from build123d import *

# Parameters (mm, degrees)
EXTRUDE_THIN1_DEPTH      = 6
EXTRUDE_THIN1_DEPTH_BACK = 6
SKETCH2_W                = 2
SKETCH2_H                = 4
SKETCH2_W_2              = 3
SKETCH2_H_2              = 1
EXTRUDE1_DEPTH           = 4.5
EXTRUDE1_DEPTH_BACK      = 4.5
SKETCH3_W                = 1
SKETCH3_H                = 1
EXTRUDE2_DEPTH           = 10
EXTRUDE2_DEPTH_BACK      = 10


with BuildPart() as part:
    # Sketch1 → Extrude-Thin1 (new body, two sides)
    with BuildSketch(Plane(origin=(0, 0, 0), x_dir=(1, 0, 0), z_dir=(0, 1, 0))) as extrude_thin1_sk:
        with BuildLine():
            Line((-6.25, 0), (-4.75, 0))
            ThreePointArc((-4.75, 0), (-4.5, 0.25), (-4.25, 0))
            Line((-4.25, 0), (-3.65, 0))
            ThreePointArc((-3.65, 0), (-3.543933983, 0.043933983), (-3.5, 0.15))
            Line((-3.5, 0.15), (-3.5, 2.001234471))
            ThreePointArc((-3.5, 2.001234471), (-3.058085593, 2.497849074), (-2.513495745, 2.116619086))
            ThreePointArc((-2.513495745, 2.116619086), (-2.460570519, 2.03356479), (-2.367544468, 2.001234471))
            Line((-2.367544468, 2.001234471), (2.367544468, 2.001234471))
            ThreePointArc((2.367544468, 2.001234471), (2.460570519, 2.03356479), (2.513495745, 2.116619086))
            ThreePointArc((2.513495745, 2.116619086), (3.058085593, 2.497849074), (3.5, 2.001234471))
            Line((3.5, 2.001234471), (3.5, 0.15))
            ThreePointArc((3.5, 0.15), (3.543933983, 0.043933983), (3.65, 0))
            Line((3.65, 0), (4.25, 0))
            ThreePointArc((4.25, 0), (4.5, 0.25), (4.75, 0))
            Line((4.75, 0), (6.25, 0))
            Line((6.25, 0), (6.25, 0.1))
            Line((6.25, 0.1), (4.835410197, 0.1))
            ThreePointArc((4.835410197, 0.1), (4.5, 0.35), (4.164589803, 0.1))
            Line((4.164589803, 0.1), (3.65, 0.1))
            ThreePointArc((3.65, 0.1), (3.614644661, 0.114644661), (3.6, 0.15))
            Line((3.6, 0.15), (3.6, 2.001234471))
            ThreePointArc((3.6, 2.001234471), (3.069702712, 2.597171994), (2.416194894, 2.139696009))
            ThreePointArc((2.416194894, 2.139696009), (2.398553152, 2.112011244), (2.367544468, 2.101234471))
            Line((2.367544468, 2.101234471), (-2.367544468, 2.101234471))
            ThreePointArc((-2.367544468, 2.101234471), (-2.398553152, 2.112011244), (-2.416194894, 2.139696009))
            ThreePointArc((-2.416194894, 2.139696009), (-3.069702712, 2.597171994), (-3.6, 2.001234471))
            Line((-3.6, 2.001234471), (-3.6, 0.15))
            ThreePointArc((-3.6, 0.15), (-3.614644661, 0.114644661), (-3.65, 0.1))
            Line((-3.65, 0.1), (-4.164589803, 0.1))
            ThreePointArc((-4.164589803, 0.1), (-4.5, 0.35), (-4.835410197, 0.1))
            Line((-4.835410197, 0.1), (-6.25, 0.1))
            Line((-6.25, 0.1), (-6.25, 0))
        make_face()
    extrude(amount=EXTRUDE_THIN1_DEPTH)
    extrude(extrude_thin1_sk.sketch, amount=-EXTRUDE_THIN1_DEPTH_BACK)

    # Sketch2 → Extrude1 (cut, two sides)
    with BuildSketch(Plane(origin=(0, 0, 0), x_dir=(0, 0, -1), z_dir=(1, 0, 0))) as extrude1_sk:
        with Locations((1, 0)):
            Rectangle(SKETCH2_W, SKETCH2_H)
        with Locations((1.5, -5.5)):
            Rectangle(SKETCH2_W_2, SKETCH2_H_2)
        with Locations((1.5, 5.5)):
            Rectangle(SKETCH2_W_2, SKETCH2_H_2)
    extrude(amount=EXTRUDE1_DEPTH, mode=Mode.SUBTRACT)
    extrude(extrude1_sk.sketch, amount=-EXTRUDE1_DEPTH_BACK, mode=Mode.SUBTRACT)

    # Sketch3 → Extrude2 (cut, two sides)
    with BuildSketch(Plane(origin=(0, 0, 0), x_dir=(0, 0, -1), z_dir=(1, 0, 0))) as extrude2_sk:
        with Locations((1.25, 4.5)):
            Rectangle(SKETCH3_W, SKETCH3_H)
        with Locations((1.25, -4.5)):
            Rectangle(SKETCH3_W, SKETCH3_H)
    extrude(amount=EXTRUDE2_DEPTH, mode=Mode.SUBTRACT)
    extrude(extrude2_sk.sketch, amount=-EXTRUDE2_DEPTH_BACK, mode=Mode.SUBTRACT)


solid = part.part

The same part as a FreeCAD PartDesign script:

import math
import FreeCAD as App
import Part
import Sketcher

V = App.Vector
Q = App.Units.Quantity


def add_polygon(sketch, points):
    """Adds a closed chain of lines whose ends are joined by coincident constraints."""
    first, n = sketch.GeometryCount, len(points)
    for a, b in zip(points, points[1:] + points[:1]):
        sketch.addGeometry(Part.LineSegment(App.Vector(*a, 0), App.Vector(*b, 0)), False)
    for i in range(n):
        sketch.addConstraint(Sketcher.Constraint("Coincident", first + i, 2, first + (i + 1) % n, 1))

doc = App.newDocument("Part")
body = doc.addObject("PartDesign::Body", "Body")

sketch1 = doc.addObject("Sketcher::SketchObject", "Sketch")
body.addObject(sketch1)
sketch1.AttachmentSupport = (doc.XZ_Plane, [""])
sketch1.MapMode = "FlatFace"
sketch1.addGeometry(Part.LineSegment(V(-6.25, 0, 0), V(-4.75, 0, 0)), False)
sketch1.addGeometry(Part.ArcOfCircle(Part.Circle(V(-4.5, 0, 0), V(0, 0, 1), 0.25), math.radians(180), math.radians(360)), False)
sketch1.addGeometry(Part.LineSegment(V(-4.25, 0, 0), V(-3.65, 0, 0)), False)
sketch1.addGeometry(Part.ArcOfCircle(Part.Circle(V(-3.65, -0.15, 0), V(0, 0, 1), 0.15), math.radians(0), math.radians(90)), False)
sketch1.addGeometry(Part.LineSegment(V(-3.5, -0.15, 0), V(-3.5, -2.001234, 0)), False)
sketch1.addGeometry(Part.ArcOfCircle(Part.Circle(V(-3, -2.001234, 0), V(0, 0, 1), 0.5), math.radians(180), math.radians(346.657636)), False)
sketch1.addGeometry(Part.ArcOfCircle(Part.Circle(V(-2.367544, -2.151234, 0), V(0, 0, 1), 0.15), math.radians(90), math.radians(166.657636)), False)
sketch1.addGeometry(Part.LineSegment(V(-2.367544, -2.001234, 0), V(2.367544, -2.001234, 0)), False)
sketch1.addGeometry(Part.ArcOfCircle(Part.Circle(V(2.367544, -2.151234, 0), V(0, 0, 1), 0.15), math.radians(13.342364), math.radians(90)), False)
sketch1.addGeometry(Part.ArcOfCircle(Part.Circle(V(3, -2.001234, 0), V(0, 0, 1), 0.5), math.radians(-166.657636), math.radians(0)), False)
sketch1.addGeometry(Part.LineSegment(V(3.5, -2.001234, 0), V(3.5, -0.15, 0)), False)
sketch1.addGeometry(Part.ArcOfCircle(Part.Circle(V(3.65, -0.15, 0), V(0, 0, 1), 0.15), math.radians(90), math.radians(180)), False)
sketch1.addGeometry(Part.LineSegment(V(3.65, 0, 0), V(4.25, 0, 0)), False)
sketch1.addGeometry(Part.ArcOfCircle(Part.Circle(V(4.5, 0, 0), V(0, 0, 1), 0.25), math.radians(180), math.radians(360)), False)
sketch1.addGeometry(Part.LineSegment(V(4.75, 0, 0), V(6.25, 0, 0)), False)
sketch1.addGeometry(Part.LineSegment(V(6.25, 0, 0), V(6.25, -0.1, 0)), False)
sketch1.addGeometry(Part.LineSegment(V(6.25, -0.1, 0), V(4.83541, -0.1, 0)), False)
sketch1.addGeometry(Part.ArcOfCircle(Part.Circle(V(4.5, 0, 0), V(0, 0, 1), 0.35), math.radians(-163.39845), math.radians(-16.60155)), False)
sketch1.addGeometry(Part.LineSegment(V(4.16459, -0.1, 0), V(3.65, -0.1, 0)), False)
sketch1.addGeometry(Part.ArcOfCircle(Part.Circle(V(3.65, -0.15, 0), V(0, 0, 1), 0.05), math.radians(90), math.radians(180)), False)
sketch1.addGeometry(Part.LineSegment(V(3.6, -0.15, 0), V(3.6, -2.001234, 0)), False)
sketch1.addGeometry(Part.ArcOfCircle(Part.Circle(V(3, -2.001234, 0), V(0, 0, 1), 0.6), math.radians(-166.657636), math.radians(0)), False)
sketch1.addGeometry(Part.ArcOfCircle(Part.Circle(V(2.367544, -2.151234, 0), V(0, 0, 1), 0.05), math.radians(13.342365), math.radians(90)), False)
sketch1.addGeometry(Part.LineSegment(V(2.367544, -2.101234, 0), V(-2.367544, -2.101234, 0)), False)
sketch1.addGeometry(Part.ArcOfCircle(Part.Circle(V(-2.367544, -2.151234, 0), V(0, 0, 1), 0.05), math.radians(90), math.radians(166.657635)), False)
sketch1.addGeometry(Part.ArcOfCircle(Part.Circle(V(-3, -2.001234, 0), V(0, 0, 1), 0.6), math.radians(180), math.radians(346.657636)), False)
sketch1.addGeometry(Part.LineSegment(V(-3.6, -2.001234, 0), V(-3.6, -0.15, 0)), False)
sketch1.addGeometry(Part.ArcOfCircle(Part.Circle(V(-3.65, -0.15, 0), V(0, 0, 1), 0.05), math.radians(0), math.radians(90)), False)
sketch1.addGeometry(Part.LineSegment(V(-3.65, -0.1, 0), V(-4.16459, -0.1, 0)), False)
sketch1.addGeometry(Part.ArcOfCircle(Part.Circle(V(-4.5, 0, 0), V(0, 0, 1), 0.35), math.radians(-163.39845), math.radians(-16.60155)), False)
sketch1.addGeometry(Part.LineSegment(V(-4.83541, -0.1, 0), V(-6.25, -0.1, 0)), False)
sketch1.addGeometry(Part.LineSegment(V(-6.25, -0.1, 0), V(-6.25, 0, 0)), False)
sketch1.addConstraint(Sketcher.Constraint("Coincident", 0, 2, 1, 1))
sketch1.addConstraint(Sketcher.Constraint("Coincident", 1, 2, 2, 1))
sketch1.addConstraint(Sketcher.Constraint("Tangent", 2, 2, 3, 2))
sketch1.addConstraint(Sketcher.Constraint("Tangent", 3, 1, 4, 1))
sketch1.addConstraint(Sketcher.Constraint("Tangent", 4, 2, 5, 1))
sketch1.addConstraint(Sketcher.Constraint("Tangent", 5, 2, 6, 2))
sketch1.addConstraint(Sketcher.Constraint("Tangent", 6, 1, 7, 1))
sketch1.addConstraint(Sketcher.Constraint("Tangent", 7, 2, 8, 2))
sketch1.addConstraint(Sketcher.Constraint("Tangent", 8, 1, 9, 1))
sketch1.addConstraint(Sketcher.Constraint("Tangent", 9, 2, 10, 1))
sketch1.addConstraint(Sketcher.Constraint("Tangent", 10, 2, 11, 2))
sketch1.addConstraint(Sketcher.Constraint("Tangent", 11, 1, 12, 1))
sketch1.addConstraint(Sketcher.Constraint("Coincident", 12, 2, 13, 1))
sketch1.addConstraint(Sketcher.Constraint("Coincident", 13, 2, 14, 1))
sketch1.addConstraint(Sketcher.Constraint("Coincident", 14, 2, 15, 1))
sketch1.addConstraint(Sketcher.Constraint("Coincident", 15, 2, 16, 1))
sketch1.addConstraint(Sketcher.Constraint("Coincident", 16, 2, 17, 2))
sketch1.addConstraint(Sketcher.Constraint("Coincident", 17, 1, 18, 1))
sketch1.addConstraint(Sketcher.Constraint("Tangent", 18, 2, 19, 1))
sketch1.addConstraint(Sketcher.Constraint("Tangent", 19, 2, 20, 1))
sketch1.addConstraint(Sketcher.Constraint("Tangent", 20, 2, 21, 2))
sketch1.addConstraint(Sketcher.Constraint("Tangent", 21, 1, 22, 1))
sketch1.addConstraint(Sketcher.Constraint("Tangent", 22, 2, 23, 1))
sketch1.addConstraint(Sketcher.Constraint("Tangent", 23, 2, 24, 1))
sketch1.addConstraint(Sketcher.Constraint("Tangent", 24, 2, 25, 2))
sketch1.addConstraint(Sketcher.Constraint("Tangent", 25, 1, 26, 1))
sketch1.addConstraint(Sketcher.Constraint("Tangent", 26, 2, 27, 1))
sketch1.addConstraint(Sketcher.Constraint("Tangent", 27, 2, 28, 1))
sketch1.addConstraint(Sketcher.Constraint("Coincident", 28, 2, 29, 2))
sketch1.addConstraint(Sketcher.Constraint("Coincident", 29, 1, 30, 1))
sketch1.addConstraint(Sketcher.Constraint("Coincident", 30, 2, 31, 1))
sketch1.addConstraint(Sketcher.Constraint("Coincident", 31, 2, 0, 1))
sketch1.addConstraint(Sketcher.Constraint("Horizontal", 0))
sketch1.addConstraint(Sketcher.Constraint("Horizontal", 2))
sketch1.addConstraint(Sketcher.Constraint("Vertical", 4))
sketch1.addConstraint(Sketcher.Constraint("Horizontal", 7))
sketch1.addConstraint(Sketcher.Constraint("Vertical", 10))
sketch1.addConstraint(Sketcher.Constraint("Horizontal", 12))
sketch1.addConstraint(Sketcher.Constraint("Horizontal", 14))
sketch1.addConstraint(Sketcher.Constraint("Vertical", 15))
sketch1.addConstraint(Sketcher.Constraint("Horizontal", 16))
sketch1.addConstraint(Sketcher.Constraint("Horizontal", 18))
sketch1.addConstraint(Sketcher.Constraint("Vertical", 20))
sketch1.addConstraint(Sketcher.Constraint("Horizontal", 23))
sketch1.addConstraint(Sketcher.Constraint("Vertical", 26))
sketch1.addConstraint(Sketcher.Constraint("Horizontal", 28))
sketch1.addConstraint(Sketcher.Constraint("Horizontal", 30))
sketch1.addConstraint(Sketcher.Constraint("Vertical", 31))
sketch1.addConstraint(Sketcher.Constraint("Coincident", 17, 3, 13, 3))
sketch1.addConstraint(Sketcher.Constraint("Coincident", 19, 3, 11, 3))
sketch1.addConstraint(Sketcher.Constraint("Coincident", 21, 3, 9, 3))
sketch1.addConstraint(Sketcher.Constraint("Coincident", 22, 3, 8, 3))
sketch1.addConstraint(Sketcher.Constraint("Coincident", 24, 3, 6, 3))
sketch1.addConstraint(Sketcher.Constraint("Coincident", 25, 3, 5, 3))
sketch1.addConstraint(Sketcher.Constraint("Coincident", 27, 3, 3, 3))
sketch1.addConstraint(Sketcher.Constraint("Coincident", 29, 3, 1, 3))
sketch1.addConstraint(Sketcher.Constraint("Equal", 3, 6))
sketch1.addConstraint(Sketcher.Constraint("Equal", 6, 8))
sketch1.addConstraint(Sketcher.Constraint("Equal", 5, 9))
sketch1.addConstraint(Sketcher.Constraint("Equal", 8, 11))
sketch1.addConstraint(Sketcher.Constraint("Equal", 1, 13))
sketch1.addConstraint(Sketcher.Constraint("Equal", 17, 29))
sketch1.addConstraint(Sketcher.Constraint("Symmetric", 1, 3, 13, 3, -1, 1))
sketch1.addConstraint(Sketcher.Constraint("Symmetric", 2, 2, 11, 1, -1, 1))
sketch1.addConstraint(Sketcher.Constraint("Symmetric", 14, 2, 31, 2, -1, 1))
sketch1.addConstraint(Sketcher.Constraint("Symmetric", 17, 1, 28, 2, -2))
sketch1.addConstraint(Sketcher.Constraint("PointOnObject", 0, 2, -1))
sketch1.addConstraint(Sketcher.Constraint("Horizontal", 5, 3, 9, 3))
sketch1.addConstraint(Sketcher.Constraint("Horizontal", 4, 2, 6, 1))
sketch1.addConstraint(Sketcher.Constraint("Horizontal", 16, 2, 17, 1))
sketch1.addConstraint(Sketcher.Constraint("Horizontal", 28, 2, 29, 1))
sketch1.addConstraint(Sketcher.Constraint("Radius", 5, Q("0.5 mm")))
sketch1.addConstraint(Sketcher.Constraint("Radius", 21, Q("0.6 mm")))
sketch1.addConstraint(Sketcher.Constraint("Radius", 1, Q("0.25 mm")))
sketch1.addConstraint(Sketcher.Constraint("Radius", 3, Q("0.15 mm")))
sketch1.addConstraint(Sketcher.Constraint("Radius", 17, Q("0.35 mm")))
sketch1.addConstraint(Sketcher.Constraint("DistanceX", 0, 1, 0, 2, Q("1.5 mm")))
sketch1.addConstraint(Sketcher.Constraint("DistanceX", 2, 1, 2, 2, Q("0.6 mm")))
sketch1.addConstraint(Sketcher.Constraint("DistanceX", 5, 3, -1, 1, Q("3 mm")))
sketch1.addConstraint(Sketcher.Constraint("DistanceY", 4, 2, 4, 1, Q("1.851234 mm")))
pad1 = doc.addObject("PartDesign::Pad", "Pad")
body.addObject(pad1)
pad1.Profile = sketch1
pad1.Type = "TwoLengths"
pad1.Length = 6
pad1.Length2 = 6
pad1.Reversed = True

sketch2 = doc.addObject("Sketcher::SketchObject", "Sketch001")
body.addObject(sketch2)
sketch2.AttachmentSupport = (doc.YZ_Plane, [""])
sketch2.MapMode = "FlatFace"
add_polygon(sketch2, [(2, 0), (-2, 0), (-2, -2), (2, -2)])
add_polygon(sketch2, [(-5, 0), (-6, 0), (-6, -3), (-5, -3)])
add_polygon(sketch2, [(6, 0), (5, 0), (5, -3), (6, -3)])
sketch2.addConstraint(Sketcher.Constraint("Horizontal", 0))
sketch2.addConstraint(Sketcher.Constraint("Vertical", 1))
sketch2.addConstraint(Sketcher.Constraint("Horizontal", 2))
sketch2.addConstraint(Sketcher.Constraint("Vertical", 3))
sketch2.addConstraint(Sketcher.Constraint("Horizontal", 4))
sketch2.addConstraint(Sketcher.Constraint("Vertical", 5))
sketch2.addConstraint(Sketcher.Constraint("Horizontal", 6))
sketch2.addConstraint(Sketcher.Constraint("Vertical", 7))
sketch2.addConstraint(Sketcher.Constraint("Horizontal", 8))
sketch2.addConstraint(Sketcher.Constraint("Vertical", 9))
sketch2.addConstraint(Sketcher.Constraint("Horizontal", 10))
sketch2.addConstraint(Sketcher.Constraint("Vertical", 11))
sketch2.addConstraint(Sketcher.Constraint("Symmetric", 0, 2, 3, 2, -1, 1))
sketch2.addConstraint(Sketcher.Constraint("Symmetric", 7, 2, 8, 2, -1, 1))
sketch2.addConstraint(Sketcher.Constraint("Symmetric", 5, 2, 10, 2, -2))
sketch2.addConstraint(Sketcher.Constraint("PointOnObject", 4, 2, -1))
sketch2.addConstraint(Sketcher.Constraint("DistanceX", 0, 2, 0, 1, Q("4 mm")))
sketch2.addConstraint(Sketcher.Constraint("DistanceX", 4, 2, 4, 1, Q("1 mm")))
sketch2.addConstraint(Sketcher.Constraint("DistanceY", 1, 2, 1, 1, Q("2 mm")))
sketch2.addConstraint(Sketcher.Constraint("DistanceY", 5, 2, 5, 1, Q("3 mm")))
sketch2.addConstraint(Sketcher.Constraint("DistanceX", 4, 2, -1, 1, Q("6 mm")))
pocket1 = doc.addObject("PartDesign::Pocket", "Pocket")
body.addObject(pocket1)
pocket1.Profile = sketch2
pocket1.Type = "TwoLengths"
pocket1.Length = 4.5
pocket1.Length2 = 4.5
pocket1.Reversed = True

sketch3 = doc.addObject("Sketcher::SketchObject", "Sketch002")
body.addObject(sketch3)
sketch3.AttachmentSupport = (doc.YZ_Plane, [""])
sketch3.MapMode = "FlatFace"
add_polygon(sketch3, [(5, -0.75), (4, -0.75), (4, -1.75), (5, -1.75)])
add_polygon(sketch3, [(-4, -0.75), (-5, -0.75), (-5, -1.75), (-4, -1.75)])
sketch3.addConstraint(Sketcher.Constraint("Horizontal", 0))
sketch3.addConstraint(Sketcher.Constraint("Vertical", 1))
sketch3.addConstraint(Sketcher.Constraint("Horizontal", 2))
sketch3.addConstraint(Sketcher.Constraint("Vertical", 3))
sketch3.addConstraint(Sketcher.Constraint("Horizontal", 4))
sketch3.addConstraint(Sketcher.Constraint("Vertical", 5))
sketch3.addConstraint(Sketcher.Constraint("Horizontal", 6))
sketch3.addConstraint(Sketcher.Constraint("Vertical", 7))
sketch3.addConstraint(Sketcher.Constraint("Symmetric", 3, 2, 4, 2, -2))
sketch3.addConstraint(Sketcher.Constraint("Symmetric", 1, 2, 6, 2, -2))
sketch3.addConstraint(Sketcher.Constraint("Equal", 6, 1))
sketch3.addConstraint(Sketcher.Constraint("DistanceX", 0, 2, 0, 1, Q("1 mm")))
sketch3.addConstraint(Sketcher.Constraint("DistanceX", -1, 1, 0, 2, Q("4 mm")))
sketch3.addConstraint(Sketcher.Constraint("DistanceY", 0, 2, -1, 1, Q("0.75 mm")))
pocket2 = doc.addObject("PartDesign::Pocket", "Pocket001")
body.addObject(pocket2)
pocket2.Profile = sketch3
pocket2.Type = "ThroughAll"
pocket2.Midplane = True

doc.recompute()
